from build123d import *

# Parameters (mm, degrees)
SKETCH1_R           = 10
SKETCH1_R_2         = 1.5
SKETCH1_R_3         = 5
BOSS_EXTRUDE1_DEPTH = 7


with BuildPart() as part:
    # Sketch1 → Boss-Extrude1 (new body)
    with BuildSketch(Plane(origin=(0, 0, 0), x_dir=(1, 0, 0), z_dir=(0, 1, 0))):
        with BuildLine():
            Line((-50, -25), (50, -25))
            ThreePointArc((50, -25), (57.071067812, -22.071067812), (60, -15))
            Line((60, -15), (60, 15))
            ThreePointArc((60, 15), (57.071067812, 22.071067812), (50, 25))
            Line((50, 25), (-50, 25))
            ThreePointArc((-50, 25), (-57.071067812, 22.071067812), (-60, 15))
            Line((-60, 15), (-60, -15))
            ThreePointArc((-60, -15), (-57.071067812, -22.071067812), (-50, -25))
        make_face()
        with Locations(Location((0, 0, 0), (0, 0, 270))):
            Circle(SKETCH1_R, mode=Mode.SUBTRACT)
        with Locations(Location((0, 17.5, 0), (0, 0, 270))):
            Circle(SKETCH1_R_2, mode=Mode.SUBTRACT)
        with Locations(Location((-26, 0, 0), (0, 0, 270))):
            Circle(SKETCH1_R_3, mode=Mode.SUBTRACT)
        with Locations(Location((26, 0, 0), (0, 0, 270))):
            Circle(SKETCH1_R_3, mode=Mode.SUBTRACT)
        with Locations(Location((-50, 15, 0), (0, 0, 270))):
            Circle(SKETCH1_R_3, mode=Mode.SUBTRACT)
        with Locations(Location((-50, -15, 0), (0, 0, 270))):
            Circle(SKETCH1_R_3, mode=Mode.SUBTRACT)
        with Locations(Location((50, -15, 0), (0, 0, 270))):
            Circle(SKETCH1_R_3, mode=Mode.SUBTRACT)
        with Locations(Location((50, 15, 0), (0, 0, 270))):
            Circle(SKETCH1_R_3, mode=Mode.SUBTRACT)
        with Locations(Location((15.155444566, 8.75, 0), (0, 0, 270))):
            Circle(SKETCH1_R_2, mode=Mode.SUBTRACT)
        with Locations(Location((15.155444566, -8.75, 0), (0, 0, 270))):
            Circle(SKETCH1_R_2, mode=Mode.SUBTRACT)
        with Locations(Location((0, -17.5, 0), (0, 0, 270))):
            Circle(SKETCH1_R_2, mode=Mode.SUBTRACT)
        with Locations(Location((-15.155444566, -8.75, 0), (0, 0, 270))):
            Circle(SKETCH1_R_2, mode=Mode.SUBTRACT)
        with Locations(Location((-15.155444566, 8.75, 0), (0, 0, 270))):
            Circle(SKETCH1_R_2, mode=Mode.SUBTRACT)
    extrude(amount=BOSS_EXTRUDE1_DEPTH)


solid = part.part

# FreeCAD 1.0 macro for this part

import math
import FreeCAD as App
import Part
import Sketcher

V = App.Vector

doc = App.newDocument("Part")
body = doc.addObject("PartDesign::Body", "Body")

sketch1 = body.newObject("Sketcher::SketchObject", "Sketch")
sketch1.AttachmentSupport = (doc.getObject("XZ_Plane"), [""])
sketch1.MapMode = "FlatFace"
sketch1.addGeometry(Part.LineSegment(V(-50, 25, 0), V(50, 25, 0)), False)
sketch1.addGeometry(Part.ArcOfCircle(Part.Circle(V(50, 15, 0), V(0, 0, 1), 10), math.radians(0), math.radians(90)), False)
sketch1.addGeometry(Part.LineSegment(V(60, 15, 0), V(60, -15, 0)), False)
sketch1.addGeometry(Part.ArcOfCircle(Part.Circle(V(50, -15, 0), V(0, 0, 1), 10), math.radians(-90), math.radians(0)), False)
sketch1.addGeometry(Part.LineSegment(V(50, -25, 0), V(-50, -25, 0)), False)
sketch1.addGeometry(Part.ArcOfCircle(Part.Circle(V(-50, -15, 0), V(0, 0, 1), 10), math.radians(180), math.radians(270)), False)
sketch1.addGeometry(Part.LineSegment(V(-60, -15, 0), V(-60, 15, 0)), False)
sketch1.addGeometry(Part.ArcOfCircle(Part.Circle(V(-50, 15, 0), V(0, 0, 1), 10), math.radians(90), math.radians(180)), False)
sketch1.addGeometry(Part.Circle(V(-50, 15, 0), V(0, 0, 1), 5), False)
sketch1.addGeometry(Part.Circle(V(-15.2, 8.8, 0), V(0, 0, 1), 1.5), False)
sketch1.addGeometry(Part.Circle(V(0, 17.5, 0), V(0, 0, 1), 1.5), False)
sketch1.addGeometry(Part.Circle(V(50, 15, 0), V(0, 0, 1), 5), False)
sketch1.addGeometry(Part.Circle(V(15.2, 8.8, 0), V(0, 0, 1), 1.5), False)
sketch1.addGeometry(Part.Circle(V(-26, 0, 0), V(0, 0, 1), 5), False)
sketch1.addGeometry(Part.Circle(V(-15.2, -8.8, 0), V(0, 0, 1), 1.5), False)
sketch1.addGeometry(Part.Circle(V(-50, -15, 0), V(0, 0, 1), 5), False)
sketch1.addGeometry(Part.Circle(V(0, 0, 0), V(0, 0, 1), 10), False)
sketch1.addGeometry(Part.Circle(V(26, 0, 0), V(0, 0, 1), 5), False)
sketch1.addGeometry(Part.Circle(V(15.2, -8.8, 0), V(0, 0, 1), 1.5), False)
sketch1.addGeometry(Part.Circle(V(0, -17.5, 0), V(0, 0, 1), 1.5), False)
sketch1.addGeometry(Part.Circle(V(50, -15, 0), V(0, 0, 1), 5), False)
sketch1.addConstraint(Sketcher.Constraint("Tangent", 0, 2, 1, 2))
sketch1.addConstraint(Sketcher.Constraint("Tangent", 1, 1, 2, 1))
sketch1.addConstraint(Sketcher.Constraint("Tangent", 2, 2, 3, 2))
sketch1.addConstraint(Sketcher.Constraint("Tangent", 3, 1, 4, 1))
sketch1.addConstraint(Sketcher.Constraint("Tangent", 4, 2, 5, 2))
sketch1.addConstraint(Sketcher.Constraint("Tangent", 5, 1, 6, 1))
sketch1.addConstraint(Sketcher.Constraint("Tangent", 6, 2, 7, 2))
sketch1.addConstraint(Sketcher.Constraint("Tangent", 7, 1, 0, 1))
sketch1.addConstraint(Sketcher.Constraint("Horizontal", 0))
sketch1.addConstraint(Sketcher.Constraint("Vertical", 2))
sketch1.addConstraint(Sketcher.Constraint("Horizontal", 4))
sketch1.addConstraint(Sketcher.Constraint("Vertical", 6))
sketch1.addConstraint(Sketcher.Constraint("Coincident", 16, 3, -1, 1))
sketch1.addConstraint(Sketcher.Constraint("Coincident", 8, 3, 7, 3))
sketch1.addConstraint(Sketcher.Constraint("Coincident", 11, 3, 1, 3))
sketch1.addConstraint(Sketcher.Constraint("Coincident", 15, 3, 5, 3))
sketch1.addConstraint(Sketcher.Constraint("Coincident", 20, 3, 3, 3))
sketch1.addConstraint(Sketcher.Constraint("Equal", 1, 3))
sketch1.addConstraint(Sketcher.Constraint("Equal", 3, 5))
sketch1.addConstraint(Sketcher.Constraint("Equal", 5, 7))
sketch1.addConstraint(Sketcher.Constraint("Equal", 9, 10))
sketch1.addConstraint(Sketcher.Constraint("Equal", 8, 11))
sketch1.addConstraint(Sketcher.Constraint("Equal", 10, 12))
sketch1.addConstraint(Sketcher.Constraint("Equal", 11, 13))
sketch1.addConstraint(Sketcher.Constraint("Equal", 12, 14))
sketch1.addConstraint(Sketcher.Constraint("Equal", 13, 15))
sketch1.addConstraint(Sketcher.Constraint("Equal", 7, 16))
sketch1.addConstraint(Sketcher.Constraint("Equal", 15, 17))
sketch1.addConstraint(Sketcher.Constraint("Equal", 14, 18))
sketch1.addConstraint(Sketcher.Constraint("Equal", 18, 19))
sketch1.addConstraint(Sketcher.Constraint("Equal", 17, 20))
sketch1.addConstraint(Sketcher.Constraint("Symmetric", 1, 3, 5, 3, -1, 1))
sketch1.addConstraint(Sketcher.Constraint("Symmetric", 12, 3, 14, 3, -1, 1))
sketch1.addConstraint(Sketcher.Constraint("Symmetric", 13, 3, 17, 3, -1, 1))
sketch1.addConstraint(Sketcher.Constraint("Symmetric", 9, 3, 18, 3, -1, 1))
sketch1.addConstraint(Sketcher.Constraint("Symmetric", 10, 3, 19, 3, -1, 1))
sketch1.addConstraint(Sketcher.Constraint("Symmetric", 9, 3, 12, 3, -2))
sketch1.addConstraint(Sketcher.Constraint("PointOnObject", 10, 3, -2))
sketch1.addConstraint(Sketcher.Constraint("PointOnObject", 13, 3, -1))
sketch1.addConstraint(Sketcher.Constraint("Diameter", 8, 10.0))
sketch1.addConstraint(Sketcher.Constraint("Diameter", 9, 3.0))
sketch1.addConstraint(Sketcher.Constraint("Diameter", 16, 20.0))
sketch1.addConstraint(Sketcher.Constraint("DistanceX", 0, 1, 0, 2, 100.0))
sketch1.addConstraint(Sketcher.Constraint("DistanceY", 2, 2, 2, 1, 30.0))
sketch1.addConstraint(Sketcher.Constraint("DistanceX", 13, 3, -1, 1, 26.0))
sketch1.addConstraint(Sketcher.Constraint("DistanceY", -1, 1, 10, 3, 17.5))
sketch1.addConstraint(Sketcher.Constraint("DistanceY", 14, 3, 9, 3, 17.5))
sketch1.addConstraint(Sketcher.Constraint("DistanceX", 9, 3, 12, 3, 30.310889))
pad1 = body.newObject("PartDesign::Pad", "Pad")
pad1.Profile = sketch1
pad1.Length = 7
pad1.Reversed = True

doc.recompute()
